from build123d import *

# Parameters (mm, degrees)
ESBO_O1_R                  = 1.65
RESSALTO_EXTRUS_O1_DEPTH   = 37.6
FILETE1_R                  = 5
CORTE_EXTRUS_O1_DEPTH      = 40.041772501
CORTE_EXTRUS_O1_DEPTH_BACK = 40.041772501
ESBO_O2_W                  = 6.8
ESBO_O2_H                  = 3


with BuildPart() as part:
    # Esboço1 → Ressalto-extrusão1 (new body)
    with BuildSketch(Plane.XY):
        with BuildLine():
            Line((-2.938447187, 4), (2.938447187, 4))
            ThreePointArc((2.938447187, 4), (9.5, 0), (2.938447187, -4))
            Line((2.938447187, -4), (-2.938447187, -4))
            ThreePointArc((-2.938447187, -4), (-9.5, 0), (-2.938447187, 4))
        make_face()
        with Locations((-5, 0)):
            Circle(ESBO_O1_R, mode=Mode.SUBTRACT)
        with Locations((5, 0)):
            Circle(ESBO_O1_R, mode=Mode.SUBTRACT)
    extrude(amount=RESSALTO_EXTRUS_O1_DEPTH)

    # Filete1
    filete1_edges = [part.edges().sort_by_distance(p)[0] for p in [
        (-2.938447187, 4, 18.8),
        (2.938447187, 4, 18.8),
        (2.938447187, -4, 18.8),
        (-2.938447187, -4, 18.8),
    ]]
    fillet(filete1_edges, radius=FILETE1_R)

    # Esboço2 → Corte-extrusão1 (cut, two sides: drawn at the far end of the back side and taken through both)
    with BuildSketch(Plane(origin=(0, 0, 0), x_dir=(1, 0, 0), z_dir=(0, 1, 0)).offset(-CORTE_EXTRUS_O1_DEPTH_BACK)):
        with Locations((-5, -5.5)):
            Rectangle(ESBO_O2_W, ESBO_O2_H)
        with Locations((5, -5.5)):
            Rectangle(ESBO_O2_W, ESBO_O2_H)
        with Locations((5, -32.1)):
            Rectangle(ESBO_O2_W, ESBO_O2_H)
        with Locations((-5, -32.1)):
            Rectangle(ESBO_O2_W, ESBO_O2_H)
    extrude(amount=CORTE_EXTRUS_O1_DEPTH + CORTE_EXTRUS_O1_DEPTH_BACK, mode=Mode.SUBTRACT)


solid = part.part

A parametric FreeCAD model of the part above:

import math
import FreeCAD as App
import Part
import Sketcher
Q = App.Units.Quantity


def edges_at(feature, points):
    """Names of the edges that pass closest to the given points."""
    edges = feature.Shape.Edges
    near = lambda p: min(range(len(edges)), key=lambda i: edges[i].distToShape(Part.Vertex(*p))[0])
    return sorted({f"Edge{near(p) + 1}" for p in points})


def add_polygon(sketch, points):
    """Adds a closed chain of lines whose ends are joined by coincident constraints."""
    first, n = sketch.GeometryCount, len(points)
    for a, b in zip(points, points[1:] + points[:1]):
        sketch.addGeometry(Part.LineSegment(App.Vector(*a, 0), App.Vector(*b, 0)), False)
    for i in range(n):
        sketch.addConstraint(Sketcher.Constraint("Coincident", first + i, 2, first + (i + 1) % n, 1))

doc = App.newDocument("Part")
params = doc.addObject("Spreadsheet::Sheet", "Params")
for row, (alias, value) in enumerate([
    ("sketch1_diameter", "3.3 mm"),
    ("sketch1_radius", "4.5 mm"),
    ("pad1_length", "37.6 mm"),
    ("fillet_radius", "5 mm"),
    ("sketch2_height", "3 mm"),
    ("sketch2_width", "6.8 mm"),
], start=1):
    params.set(f"A{row}", alias)
    params.set(f"B{row}", "=" + value)
    params.setAlias(f"B{row}", alias)

body = doc.addObject("PartDesign::Body", "Body")

# Sketch on XY plane
sketch1 = body.newObject("Sketcher::SketchObject", "Sketch")
sketch1.AttachmentSupport = (doc.getObject("XY_Plane"), [""])
sketch1.MapMode = "FlatFace"
sketch1.addGeometry(Part.LineSegment(App.Vector(2.9, 4, 0), App.Vector(-2.9, 4, 0)), False)
sketch1.addGeometry(Part.ArcOfCircle(Part.Circle(App.Vector(-5, 0, 0), App.Vector(0, 0, 1), 4.5), math.radians(63), math.radians(297)), False)
sketch1.addGeometry(Part.LineSegment(App.Vector(-2.9, -4, 0), App.Vector(2.9, -4, 0)), False)
sketch1.addGeometry(Part.ArcOfCircle(Part.Circle(App.Vector(5, 0, 0), App.Vector(0, 0, 1), 4.5), math.radians(-117), math.radians(117)), False)
sketch1.addGeometry(Part.Circle(App.Vector(5, 0, 0), App.Vector(0, 0, 1), 1.6), False)
sketch1.addGeometry(Part.Circle(App.Vector(-5, 0, 0), App.Vector(0, 0, 1), 1.6), False)
sketch1.addConstraint(Sketcher.Constraint("Coincident", 0, 2, 1, 1))
sketch1.addConstraint(Sketcher.Constraint("Coincident", 1, 2, 2, 1))
sketch1.addConstraint(Sketcher.Constraint("Coincident", 2, 2, 3, 1))
sketch1.addConstraint(Sketcher.Constraint("Coincident", 3, 2, 0, 1))
sketch1.addConstraint(Sketcher.Constraint("Horizontal", 0))
sketch1.addConstraint(Sketcher.Constraint("Horizontal", 2))
sketch1.addConstraint(Sketcher.Constraint("Coincident", 4, 3, 3, 3))
sketch1.addConstraint(Sketcher.Constraint("Coincident", 5, 3, 1, 3))
sketch1.addConstraint(Sketcher.Constraint("Equal", 1, 3))
sketch1.addConstraint(Sketcher.Constraint("Equal", 4, 5))
sketch1.addConstraint(Sketcher.Constraint("Symmetric", 1, 3, 3, 3, -1, 1))
sketch1.addConstraint(Sketcher.Constraint("Symmetric", 0, 2, 1, 2, -1))
sketch1.addConstraint(Sketcher.Constraint("Diameter", 4, Q("3.3 mm")))
sketch1.addConstraint(Sketcher.Constraint("Radius", 1, Q("4.5 mm")))
sketch1.addConstraint(Sketcher.Constraint("DistanceX", 1, 3, -1, 1, Q("5 mm")))
sketch1.addConstraint(Sketcher.Constraint("DistanceY", -1, 1, 0, 2, Q("4 mm")))
sketch1.setExpression("Constraints[12]", "Params.sketch1_diameter")
sketch1.setExpression("Constraints[13]", "Params.sketch1_radius")
pad1 = body.newObject("PartDesign::Pad", "Pad")
pad1.Profile = sketch1
pad1.setExpression("Length", "Params.pad1_length")
doc.recompute()

fillet = body.newObject("PartDesign::Fillet", "Fillet")
fillet.Base = (pad1, edges_at(pad1, [
    (-2.938, 4, 18.8),
    (2.938, 4, 18.8),
    (2.938, -4, 18.8),
    (-2.938, -4, 18.8),
]))
fillet.setExpression("Radius", "Params.fillet_radius")

# Sketch on XZ plane
sketch2 = body.newObject("Sketcher::SketchObject", "Sketch001")
sketch2.AttachmentSupport = (doc.getObject("XZ_Plane"), [""])
sketch2.MapMode = "FlatFace"
add_polygon(sketch2, [(-8.4, 4), (-8.4, 7), (-1.6, 7), (-1.6, 4)])  # lines 0-3
add_polygon(sketch2, [(1.6, 4), (1.6, 7), (8.4, 7), (8.4, 4)])  # lines 4-7
add_polygon(sketch2, [(1.6, 30.6), (1.6, 33.6), (8.4, 33.6), (8.4, 30.6)])  # lines 8-11
add_polygon(sketch2, [(-8.4, 30.6), (-8.4, 33.6), (-1.6, 33.6), (-1.6, 30.6)])  # lines 12-15
sketch2.addConstraint(Sketcher.Constraint("Vertical", 0))
sketch2.addConstraint(Sketcher.Constraint("Horizontal", 1))
sketch2.addConstraint(Sketcher.Constraint("Vertical", 2))
sketch2.addConstraint(Sketcher.Constraint("Horizontal", 3))
sketch2.addConstraint(Sketcher.Constraint("Vertical", 4))
sketch2.addConstraint(Sketcher.Constraint("Horizontal", 5))
sketch2.addConstraint(Sketcher.Constraint("Vertical", 6))
sketch2.addConstraint(Sketcher.Constraint("Horizontal", 7))
sketch2.addConstraint(Sketcher.Constraint("Vertical", 8))
sketch2.addConstraint(Sketcher.Constraint("Horizontal", 9))
sketch2.addConstraint(Sketcher.Constraint("Vertical", 10))
sketch2.addConstraint(Sketcher.Constraint("Horizontal", 11))
sketch2.addConstraint(Sketcher.Constraint("Vertical", 12))
sketch2.addConstraint(Sketcher.Constraint("Horizontal", 13))
sketch2.addConstraint(Sketcher.Constraint("Vertical", 14))
sketch2.addConstraint(Sketcher.Constraint("Horizontal", 15))
sketch2.addConstraint(Sketcher.Constraint("Symmetric", 1, 2, 4, 2, -2))
sketch2.addConstraint(Sketcher.Constraint("Symmetric", 3, 2, 6, 2, -2))
sketch2.addConstraint(Sketcher.Constraint("Symmetric", 9, 2, 12, 2, -2))
sketch2.addConstraint(Sketcher.Constraint("Symmetric", 11, 2, 14, 2, -2))
sketch2.addConstraint(Sketcher.Constraint("Vertical", 7, 2, 8, 2))
sketch2.addConstraint(Sketcher.Constraint("Vertical", 6, 2, 9, 2))
sketch2.addConstraint(Sketcher.Constraint("Equal", 6, 8))
sketch2.addConstraint(Sketcher.Constraint("DistanceY", 0, 1, 0, 2, Q("3 mm")))
sketch2.addConstraint(Sketcher.Constraint("DistanceX", 1, 1, 1, 2, Q("6.8 mm")))
sketch2.addConstraint(Sketcher.Constraint("DistanceY", -1, 1, 0, 2, Q("7 mm")))
sketch2.addConstraint(Sketcher.Constraint("DistanceX", 0, 2, 4, 2, Q("10 mm")))
sketch2.addConstraint(Sketcher.Constraint("DistanceY", -1, 1, 8, 2, Q("33.6 mm")))
sketch2.setExpression("Constraints[39]", "Params.sketch2_height")
sketch2.setExpression("Constraints[40]", "Params.sketch2_width")
pocket1 = body.newObject("PartDesign::Pocket", "Pocket")
pocket1.Profile = sketch2
pocket1.Type = "ThroughAll"
pocket1.Midplane = True

doc.recompute()
